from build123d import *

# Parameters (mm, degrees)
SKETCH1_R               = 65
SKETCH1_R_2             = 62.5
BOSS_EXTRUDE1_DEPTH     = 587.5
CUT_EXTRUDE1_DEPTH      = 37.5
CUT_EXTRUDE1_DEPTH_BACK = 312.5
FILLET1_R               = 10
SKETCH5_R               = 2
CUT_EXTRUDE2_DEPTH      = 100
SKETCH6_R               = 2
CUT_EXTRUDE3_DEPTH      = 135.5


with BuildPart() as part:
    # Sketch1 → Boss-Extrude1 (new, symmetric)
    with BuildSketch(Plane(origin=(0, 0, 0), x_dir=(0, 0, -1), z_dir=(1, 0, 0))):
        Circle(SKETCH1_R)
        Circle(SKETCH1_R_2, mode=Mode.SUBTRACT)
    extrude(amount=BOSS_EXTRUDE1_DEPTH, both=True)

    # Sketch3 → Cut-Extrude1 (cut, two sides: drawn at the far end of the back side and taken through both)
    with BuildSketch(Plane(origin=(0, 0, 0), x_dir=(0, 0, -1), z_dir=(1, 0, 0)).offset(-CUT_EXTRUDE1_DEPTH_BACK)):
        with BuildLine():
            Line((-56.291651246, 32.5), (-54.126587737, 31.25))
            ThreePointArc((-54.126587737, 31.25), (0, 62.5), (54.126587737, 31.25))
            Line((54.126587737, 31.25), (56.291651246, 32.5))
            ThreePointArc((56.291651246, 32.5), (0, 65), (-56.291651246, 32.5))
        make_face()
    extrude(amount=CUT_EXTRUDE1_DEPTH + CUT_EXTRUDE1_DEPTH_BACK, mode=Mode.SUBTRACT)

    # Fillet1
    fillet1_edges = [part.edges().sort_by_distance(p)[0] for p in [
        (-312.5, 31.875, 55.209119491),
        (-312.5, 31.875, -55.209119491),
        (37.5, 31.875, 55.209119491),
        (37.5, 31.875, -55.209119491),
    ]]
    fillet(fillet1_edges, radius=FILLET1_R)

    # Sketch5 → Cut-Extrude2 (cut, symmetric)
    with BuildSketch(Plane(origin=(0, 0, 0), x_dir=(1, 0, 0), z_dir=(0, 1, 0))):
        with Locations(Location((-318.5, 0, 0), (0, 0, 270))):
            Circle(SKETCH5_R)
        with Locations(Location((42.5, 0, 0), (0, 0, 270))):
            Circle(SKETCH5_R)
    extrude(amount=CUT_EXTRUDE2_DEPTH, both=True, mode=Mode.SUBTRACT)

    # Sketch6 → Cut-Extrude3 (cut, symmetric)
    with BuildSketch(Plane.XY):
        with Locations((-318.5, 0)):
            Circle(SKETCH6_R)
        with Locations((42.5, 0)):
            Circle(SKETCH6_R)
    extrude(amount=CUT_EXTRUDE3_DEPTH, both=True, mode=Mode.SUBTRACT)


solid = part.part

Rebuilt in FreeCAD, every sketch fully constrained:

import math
import FreeCAD as App
import Part
import Sketcher
from FreeCAD import Vector
Q = App.Units.Quantity


def edges_at(feature, points):
    """Names of the edges that pass closest to the given points."""
    edges = feature.Shape.Edges
    near = lambda p: min(range(len(edges)), key=lambda i: edges[i].distToShape(Part.Vertex(*p))[0])
    return sorted({f"Edge{near(p) + 1}" for p in points})

doc = App.newDocument("Part")
body = doc.addObject("PartDesign::Body", "Body")

sketch1 = body.newObject("Sketcher::SketchObject", "Sketch")
sketch1.AttachmentSupport = (doc.getObject("YZ_Plane"), [""])
sketch1.MapMode = "FlatFace"
sketch1.addGeometry([
    Part.Circle(Vector(0, 0, 0), Vector(0, 0, 1), 65),
    Part.Circle(Vector(0, 0, 0), Vector(0, 0, 1), 62),
], False)
sketch1.addConstraint([
    Sketcher.Constraint("Coincident", 0, 3, -1, 1),
    Sketcher.Constraint("Coincident", 1, 3, -1, 1),
    Sketcher.Constraint("Diameter", 0, 130.0),
    Sketcher.Constraint("Diameter", 1, 125.0),
])
pad1 = body.newObject("PartDesign::Pad", "Pad")
pad1.Profile = sketch1
pad1.Length = 1175
pad1.Midplane = True

sketch2 = body.newObject("Sketcher::SketchObject", "Sketch001")
sketch2.AttachmentSupport = (doc.getObject("YZ_Plane"), [""])
sketch2.MapMode = "FlatFace"
sketch2.addGeometry([
    Part.LineSegment(Vector(32.5, 56.3, 0), Vector(31.2, 54.1, 0)),
    Part.ArcOfCircle(Part.Circle(Vector(0, 0, 0), Vector(0, 0, 1), 62.5), math.radians(-60), math.radians(60)),
    Part.LineSegment(Vector(31.2, -54.1, 0), Vector(32.5, -56.3, 0)),
    Part.ArcOfCircle(Part.Circle(Vector(0, 0, 0), Vector(0, 0, 1), 65), math.radians(-60), math.radians(60)),
], False)
sketch2.addConstraint([
    Sketcher.Constraint("Coincident", 0, 2, 1, 2),
    Sketcher.Constraint("Coincident", 1, 1, 2, 1),
    Sketcher.Constraint("Coincident", 2, 2, 3, 1),
    Sketcher.Constraint("Coincident", 3, 2, 0, 1),
    Sketcher.Constraint("Coincident", 1, 3, -1, 1),
    Sketcher.Constraint("Coincident", 3, 3, -1, 1),
    Sketcher.Constraint("Vertical", 0, 2, 1, 1),
    Sketcher.Constraint("Vertical", 2, 2, 3, 2),
    Sketcher.Constraint("Radius", 3, 65.0),
    Sketcher.Constraint("Radius", 1, 62.5),
    Sketcher.Constraint("Angle", 0, Q("-120 deg")),
    Sketcher.Constraint("DistanceX", -1, 1, 2, 2, 32.5),
])
pocket1 = body.newObject("PartDesign::Pocket", "Pocket")
pocket1.Profile = sketch2
pocket1.Type = "TwoLengths"
pocket1.Length = 37.5
pocket1.Length2 = 312.5
pocket1.Reversed = True
doc.recompute()

fillet = body.newObject("PartDesign::Fillet", "Fillet")
fillet.Base = (pocket1, edges_at(pocket1, [
    (-312.5, 31.875, 55.209),
    (-312.5, 31.875, -55.209),
    (37.5, 31.875, 55.209),
    (37.5, 31.875, -55.209),
]))
fillet.Radius = 10

sketch3 = body.newObject("Sketcher::SketchObject", "Sketch002")
sketch3.AttachmentSupport = (doc.getObject("XZ_Plane"), [""])
sketch3.MapMode = "FlatFace"
sketch3.addGeometry([
    Part.Circle(Vector(-318.5, 0, 0), Vector(0, 0, 1), 2),
    Part.Circle(Vector(42.5, 0, 0), Vector(0, 0, 1), 2),
], False)
sketch3.addConstraint([
    Sketcher.Constraint("Equal", 0, 1),
    Sketcher.Constraint("PointOnObject", 0, 3, -1),
    Sketcher.Constraint("PointOnObject", 1, 3, -1),
    Sketcher.Constraint("Diameter", 0, 4.0),
    Sketcher.Constraint("DistanceX", 0, 3, 1, 3, 361.0),
    Sketcher.Constraint("DistanceX", 0, 3, -1, 1, 318.5),
])
pocket2 = body.newObject("PartDesign::Pocket", "Pocket001")
pocket2.Profile = sketch3
pocket2.Length = 200
pocket2.Midplane = True

sketch4 = body.newObject("Sketcher::SketchObject", "Sketch003")
sketch4.AttachmentSupport = (doc.getObject("XY_Plane"), [""])
sketch4.MapMode = "FlatFace"
sketch4.addGeometry([
    Part.Circle(Vector(-318.5, 0, 0), Vector(0, 0, 1), 2),
    Part.Circle(Vector(42.5, 0, 0), Vector(0, 0, 1), 2),
], False)
sketch4.addConstraint([
    Sketcher.Constraint("Equal", 0, 1),
    Sketcher.Constraint("PointOnObject", 0, 3, -1),
    Sketcher.Constraint("PointOnObject", 1, 3, -1),
    Sketcher.Constraint("Diameter", 0, 4.0),
    Sketcher.Constraint("DistanceX", 0, 3, 1, 3, 361.0),
    Sketcher.Constraint("DistanceX", 0, 3, -1, 1, 318.5),
])
pocket3 = body.newObject("PartDesign::Pocket", "Pocket002")
pocket3.Profile = sketch4
pocket3.Length = 271
pocket3.Midplane = True

doc.recompute()
